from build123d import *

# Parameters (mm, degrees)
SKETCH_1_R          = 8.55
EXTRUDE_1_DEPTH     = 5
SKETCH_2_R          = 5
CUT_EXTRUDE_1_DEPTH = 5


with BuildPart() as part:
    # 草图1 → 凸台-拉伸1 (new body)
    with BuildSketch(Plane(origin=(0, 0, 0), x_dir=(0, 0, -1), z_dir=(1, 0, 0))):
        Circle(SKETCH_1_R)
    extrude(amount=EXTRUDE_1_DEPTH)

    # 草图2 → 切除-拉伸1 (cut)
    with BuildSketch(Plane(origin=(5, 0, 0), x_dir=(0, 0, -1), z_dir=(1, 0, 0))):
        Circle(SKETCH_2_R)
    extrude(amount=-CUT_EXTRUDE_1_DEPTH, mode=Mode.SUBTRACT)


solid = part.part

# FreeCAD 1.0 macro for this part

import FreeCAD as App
import Part
import Sketcher

doc = App.newDocument("Part")
params = doc.addObject("Spreadsheet::Sheet", "Params")
for row, (alias, value) in enumerate([
    ("sketch1_diameter", "17.1 mm"),
    ("pad1_length", "5 mm"),
    ("sketch2_diameter", "10 mm"),
    ("pocket1_length", "5 mm"),
], start=1):
    params.set(f"A{row}", alias)
    params.set(f"B{row}", "=" + value)
    params.setAlias(f"B{row}", alias)

body = doc.addObject("PartDesign::Body", "Body")

# Sketch on YZ plane
sketch1 = body.newObject("Sketcher::SketchObject", "Sketch")
sketch1.AttachmentSupport = (doc.getObject("YZ_Plane"), [""])
sketch1.MapMode = "FlatFace"
sketch1.addGeometry(Part.Circle(App.Vector(0, 0, 0), App.Vector(0, 0, 1), 9), False)
sketch1.addConstraint(Sketcher.Constraint("Coincident", 0, 3, -1, 1))
sketch1.addConstraint(Sketcher.Constraint("Diameter", 0, 17.1))
sketch1.setExpression("Constraints[1]", "Params.sketch1_diameter")
pad1 = body.newObject("PartDesign::Pad", "Pad")
pad1.Profile = sketch1
pad1.setExpression("Length", "Params.pad1_length")

# Sketch on YZ plane
sketch2 = body.newObject("Sketcher::SketchObject", "Sketch001")
sketch2.AttachmentSupport = (doc.getObject("YZ_Plane"), [""])
sketch2.MapMode = "FlatFace"
sketch2.AttachmentOffset = App.Placement(App.Vector(0, 0, 5), App.Rotation())
sketch2.addGeometry(Part.Circle(App.Vector(0, 0, 0), App.Vector(0, 0, 1), 5), False)
sketch2.addConstraint(Sketcher.Constraint("Coincident", 0, 3, -1, 1))
sketch2.addConstraint(Sketcher.Constraint("Diameter", 0, 10.0))
sketch2.setExpression("Constraints[1]", "Params.sketch2_diameter")
pocket1 = body.newObject("PartDesign::Pocket", "Pocket")
pocket1.Profile = sketch2
pocket1.setExpression("Length", "Params.pocket1_length")

doc.recompute()
